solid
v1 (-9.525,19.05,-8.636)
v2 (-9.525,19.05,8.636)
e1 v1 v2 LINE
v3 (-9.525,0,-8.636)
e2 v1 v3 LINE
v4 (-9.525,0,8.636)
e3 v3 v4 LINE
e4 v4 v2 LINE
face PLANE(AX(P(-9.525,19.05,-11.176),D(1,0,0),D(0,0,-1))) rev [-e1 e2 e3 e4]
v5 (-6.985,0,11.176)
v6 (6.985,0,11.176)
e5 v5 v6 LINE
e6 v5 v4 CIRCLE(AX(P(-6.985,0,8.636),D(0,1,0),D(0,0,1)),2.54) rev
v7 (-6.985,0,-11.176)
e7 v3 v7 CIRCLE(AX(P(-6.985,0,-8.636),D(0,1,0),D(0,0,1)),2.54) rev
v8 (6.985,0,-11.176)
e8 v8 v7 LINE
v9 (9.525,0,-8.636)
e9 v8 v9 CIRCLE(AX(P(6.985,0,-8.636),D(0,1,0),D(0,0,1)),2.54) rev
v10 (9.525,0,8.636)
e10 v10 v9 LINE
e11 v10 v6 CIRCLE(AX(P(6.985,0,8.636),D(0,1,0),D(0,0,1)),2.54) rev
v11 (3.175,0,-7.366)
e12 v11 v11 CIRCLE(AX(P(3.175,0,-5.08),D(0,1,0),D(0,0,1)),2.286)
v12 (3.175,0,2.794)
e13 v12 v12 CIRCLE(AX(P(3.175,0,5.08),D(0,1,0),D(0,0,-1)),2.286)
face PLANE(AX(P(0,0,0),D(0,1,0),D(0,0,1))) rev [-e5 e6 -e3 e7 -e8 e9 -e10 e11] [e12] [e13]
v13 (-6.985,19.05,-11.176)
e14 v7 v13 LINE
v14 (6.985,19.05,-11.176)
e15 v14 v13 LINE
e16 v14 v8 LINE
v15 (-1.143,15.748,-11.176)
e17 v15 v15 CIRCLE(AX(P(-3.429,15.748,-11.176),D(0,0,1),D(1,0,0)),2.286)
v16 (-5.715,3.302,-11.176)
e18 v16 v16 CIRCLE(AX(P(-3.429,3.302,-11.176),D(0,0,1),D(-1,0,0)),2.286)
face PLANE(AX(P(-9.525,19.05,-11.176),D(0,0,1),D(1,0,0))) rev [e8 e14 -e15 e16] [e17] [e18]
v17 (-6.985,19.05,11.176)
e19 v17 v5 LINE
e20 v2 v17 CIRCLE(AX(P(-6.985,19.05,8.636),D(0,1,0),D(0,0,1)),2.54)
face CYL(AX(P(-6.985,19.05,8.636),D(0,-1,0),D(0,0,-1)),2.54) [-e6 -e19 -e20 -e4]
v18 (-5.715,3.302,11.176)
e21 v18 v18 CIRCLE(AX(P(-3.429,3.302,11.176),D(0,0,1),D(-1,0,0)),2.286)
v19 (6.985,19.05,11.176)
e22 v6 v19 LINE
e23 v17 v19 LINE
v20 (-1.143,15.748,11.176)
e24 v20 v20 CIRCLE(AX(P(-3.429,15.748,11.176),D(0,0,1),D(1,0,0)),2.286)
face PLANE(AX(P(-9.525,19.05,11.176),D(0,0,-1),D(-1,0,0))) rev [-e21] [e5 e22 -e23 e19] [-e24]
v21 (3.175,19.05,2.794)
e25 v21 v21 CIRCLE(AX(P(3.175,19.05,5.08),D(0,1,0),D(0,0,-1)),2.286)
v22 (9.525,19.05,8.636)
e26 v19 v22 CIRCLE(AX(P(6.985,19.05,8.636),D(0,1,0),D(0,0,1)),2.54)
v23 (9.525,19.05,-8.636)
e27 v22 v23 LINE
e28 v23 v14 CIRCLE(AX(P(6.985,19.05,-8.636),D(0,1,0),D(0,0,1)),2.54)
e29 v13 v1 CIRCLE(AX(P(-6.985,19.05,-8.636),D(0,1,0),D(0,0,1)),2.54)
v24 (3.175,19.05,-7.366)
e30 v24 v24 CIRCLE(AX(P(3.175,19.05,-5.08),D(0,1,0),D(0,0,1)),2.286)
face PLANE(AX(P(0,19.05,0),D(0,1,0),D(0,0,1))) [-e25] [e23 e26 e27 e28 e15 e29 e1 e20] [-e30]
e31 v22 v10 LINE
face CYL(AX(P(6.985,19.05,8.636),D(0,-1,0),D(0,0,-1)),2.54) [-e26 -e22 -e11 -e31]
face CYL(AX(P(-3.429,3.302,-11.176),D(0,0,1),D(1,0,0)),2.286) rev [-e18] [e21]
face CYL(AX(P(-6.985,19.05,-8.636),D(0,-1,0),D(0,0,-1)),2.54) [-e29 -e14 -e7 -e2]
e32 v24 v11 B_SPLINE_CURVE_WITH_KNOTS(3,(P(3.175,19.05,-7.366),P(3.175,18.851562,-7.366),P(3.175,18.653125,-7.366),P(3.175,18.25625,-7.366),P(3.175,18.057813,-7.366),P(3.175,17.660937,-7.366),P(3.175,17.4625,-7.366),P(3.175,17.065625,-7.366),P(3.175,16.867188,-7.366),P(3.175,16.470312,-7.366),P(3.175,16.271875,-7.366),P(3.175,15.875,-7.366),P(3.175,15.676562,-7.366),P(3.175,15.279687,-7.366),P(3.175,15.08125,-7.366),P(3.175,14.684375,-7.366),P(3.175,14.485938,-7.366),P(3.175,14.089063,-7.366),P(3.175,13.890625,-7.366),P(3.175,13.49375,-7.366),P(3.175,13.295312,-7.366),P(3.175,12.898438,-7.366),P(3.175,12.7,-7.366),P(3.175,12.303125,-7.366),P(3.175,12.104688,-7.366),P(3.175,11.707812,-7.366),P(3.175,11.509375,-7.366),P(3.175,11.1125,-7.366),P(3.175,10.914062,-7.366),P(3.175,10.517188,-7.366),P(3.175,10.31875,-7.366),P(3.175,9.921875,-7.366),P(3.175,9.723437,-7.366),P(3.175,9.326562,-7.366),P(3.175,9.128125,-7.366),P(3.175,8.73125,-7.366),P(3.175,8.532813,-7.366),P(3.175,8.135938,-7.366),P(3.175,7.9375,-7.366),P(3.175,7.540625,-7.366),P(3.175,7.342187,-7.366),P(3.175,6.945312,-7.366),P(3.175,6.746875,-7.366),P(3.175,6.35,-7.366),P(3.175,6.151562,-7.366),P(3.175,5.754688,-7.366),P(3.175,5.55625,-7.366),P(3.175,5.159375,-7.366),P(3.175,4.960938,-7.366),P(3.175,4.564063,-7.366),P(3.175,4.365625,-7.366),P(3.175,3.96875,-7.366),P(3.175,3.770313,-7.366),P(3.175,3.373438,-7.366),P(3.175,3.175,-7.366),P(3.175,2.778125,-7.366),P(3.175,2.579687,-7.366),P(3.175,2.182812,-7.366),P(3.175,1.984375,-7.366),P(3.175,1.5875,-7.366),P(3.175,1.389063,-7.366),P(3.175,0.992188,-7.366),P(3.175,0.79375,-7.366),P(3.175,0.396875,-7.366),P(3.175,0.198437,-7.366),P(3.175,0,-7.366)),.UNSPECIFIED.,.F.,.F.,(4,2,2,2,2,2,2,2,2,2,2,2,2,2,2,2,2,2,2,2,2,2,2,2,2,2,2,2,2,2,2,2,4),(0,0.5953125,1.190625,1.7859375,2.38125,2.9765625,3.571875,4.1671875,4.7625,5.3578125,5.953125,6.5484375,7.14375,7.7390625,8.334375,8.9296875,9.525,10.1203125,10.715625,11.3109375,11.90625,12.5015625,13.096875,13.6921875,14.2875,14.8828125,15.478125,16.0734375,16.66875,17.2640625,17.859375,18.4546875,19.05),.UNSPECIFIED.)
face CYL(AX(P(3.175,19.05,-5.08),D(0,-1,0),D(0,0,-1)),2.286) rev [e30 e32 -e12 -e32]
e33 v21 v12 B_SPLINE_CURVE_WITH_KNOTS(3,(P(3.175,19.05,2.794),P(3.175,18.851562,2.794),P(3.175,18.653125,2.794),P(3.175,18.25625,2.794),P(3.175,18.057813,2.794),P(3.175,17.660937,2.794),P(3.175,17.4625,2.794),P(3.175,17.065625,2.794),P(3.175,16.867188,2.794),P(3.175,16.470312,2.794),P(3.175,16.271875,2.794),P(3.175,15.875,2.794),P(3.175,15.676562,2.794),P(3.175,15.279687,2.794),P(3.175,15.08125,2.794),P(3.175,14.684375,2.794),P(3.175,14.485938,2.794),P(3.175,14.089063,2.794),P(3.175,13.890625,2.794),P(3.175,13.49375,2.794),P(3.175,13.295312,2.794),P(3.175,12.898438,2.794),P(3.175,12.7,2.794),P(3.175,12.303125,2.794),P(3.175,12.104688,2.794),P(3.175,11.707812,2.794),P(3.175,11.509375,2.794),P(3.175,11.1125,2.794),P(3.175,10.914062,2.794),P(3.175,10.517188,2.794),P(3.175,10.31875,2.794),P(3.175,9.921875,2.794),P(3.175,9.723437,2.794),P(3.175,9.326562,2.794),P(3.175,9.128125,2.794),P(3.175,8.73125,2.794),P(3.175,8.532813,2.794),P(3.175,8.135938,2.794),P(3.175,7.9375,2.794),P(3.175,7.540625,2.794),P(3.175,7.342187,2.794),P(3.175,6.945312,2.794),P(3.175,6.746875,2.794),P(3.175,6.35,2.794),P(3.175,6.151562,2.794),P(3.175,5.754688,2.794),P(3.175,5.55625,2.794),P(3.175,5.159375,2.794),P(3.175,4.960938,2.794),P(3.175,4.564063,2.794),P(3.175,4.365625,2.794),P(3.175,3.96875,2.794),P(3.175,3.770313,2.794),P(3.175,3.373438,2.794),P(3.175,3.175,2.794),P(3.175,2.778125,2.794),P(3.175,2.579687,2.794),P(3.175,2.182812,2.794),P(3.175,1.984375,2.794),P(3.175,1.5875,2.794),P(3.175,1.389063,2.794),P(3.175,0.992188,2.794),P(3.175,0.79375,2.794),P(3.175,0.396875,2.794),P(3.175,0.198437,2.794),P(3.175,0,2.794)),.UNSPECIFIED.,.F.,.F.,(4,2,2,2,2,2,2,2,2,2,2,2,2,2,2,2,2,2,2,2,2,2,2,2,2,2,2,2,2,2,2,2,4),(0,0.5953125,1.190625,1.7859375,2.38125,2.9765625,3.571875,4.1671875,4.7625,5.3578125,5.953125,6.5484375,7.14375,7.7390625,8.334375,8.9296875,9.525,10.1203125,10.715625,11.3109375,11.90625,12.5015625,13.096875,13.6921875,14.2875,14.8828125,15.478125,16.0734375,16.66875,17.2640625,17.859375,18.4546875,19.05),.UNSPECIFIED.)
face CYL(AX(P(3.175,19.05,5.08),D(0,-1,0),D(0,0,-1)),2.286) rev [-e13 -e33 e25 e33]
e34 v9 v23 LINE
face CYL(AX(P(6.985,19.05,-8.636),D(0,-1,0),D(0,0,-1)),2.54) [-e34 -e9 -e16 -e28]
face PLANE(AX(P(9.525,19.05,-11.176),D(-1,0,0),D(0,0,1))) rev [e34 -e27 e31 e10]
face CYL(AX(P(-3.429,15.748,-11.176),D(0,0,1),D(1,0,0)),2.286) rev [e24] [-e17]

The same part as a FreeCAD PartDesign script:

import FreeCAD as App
import Part
import Sketcher
from FreeCAD import Vector
Q = App.Units.Quantity


def edges_at(feature, points):
    """Names of the edges that pass closest to the given points."""
    edges = feature.Shape.Edges
    near = lambda p: min(range(len(edges)), key=lambda i: edges[i].distToShape(Part.Vertex(*p))[0])
    return sorted({f"Edge{near(p) + 1}" for p in points})


def add_polygon(sketch, points):
    """Adds a closed chain of lines whose ends are joined by coincident constraints."""
    first, n = sketch.GeometryCount, len(points)
    for a, b in zip(points, points[1:] + points[:1]):
        sketch.addGeometry(Part.LineSegment(App.Vector(*a, 0), App.Vector(*b, 0)), False)
    for i in range(n):
        sketch.addConstraint(Sketcher.Constraint("Coincident", first + i, 2, first + (i + 1) % n, 1))

doc = App.newDocument("Part")
body = doc.addObject("PartDesign::Body", "Body")

sketch1 = body.newObject("Sketcher::SketchObject", "Sketch")
sketch1.AttachmentSupport = (doc.getObject("XZ_Plane"), [""])
sketch1.MapMode = "FlatFace"
add_polygon(sketch1, [(-9.525, -11.176), (-9.525, 11.176), (9.525, 11.176), (9.525, -11.176)])
sketch1.addGeometry(Part.Circle(Vector(3.175, 5.08, 0), Vector(0, 0, 1), 2.286), False)
sketch1.addGeometry(Part.Circle(Vector(3.175, -5.08, 0), Vector(0, 0, 1), 2.286), False)
sketch1.addConstraint([
    Sketcher.Constraint("Vertical", 0),
    Sketcher.Constraint("Horizontal", 1),
    Sketcher.Constraint("Vertical", 2),
    Sketcher.Constraint("Horizontal", 3),
    Sketcher.Constraint("Equal", 4, 5),
    Sketcher.Constraint("Symmetric", 0, 2, 2, 2, -1, 1),
    Sketcher.Constraint("Symmetric", 4, 3, 5, 3, -1),
    Sketcher.Constraint("Diameter", 4, Q("0.18 in")),
    Sketcher.Constraint("DistanceX", 1, 1, 1, 2, Q("0.75 in")),
    Sketcher.Constraint("DistanceY", 0, 1, 0, 2, Q("0.88 in")),
    Sketcher.Constraint("DistanceY", -1, 1, 4, 3, Q("0.2 in")),
    Sketcher.Constraint("DistanceX", 0, 2, 4, 3, Q("0.5 in")),
])
pad1 = body.newObject("PartDesign::Pad", "Pad")
pad1.Profile = sketch1
pad1.Length = Q("0.75 in")
pad1.Reversed = True
doc.recompute()

fillet = body.newObject("PartDesign::Fillet", "Fillet")
fillet.Base = (pad1, edges_at(pad1, [(9.525, 9.525, 11.176), (9.525, 9.525, -11.176)]))
fillet.Radius = Q("0.1 in")
doc.recompute()

fillet2 = body.newObject("PartDesign::Fillet", "Fillet001")
fillet2.Base = (fillet, edges_at(fillet, [(-9.525, 9.525, 11.176), (-9.525, 9.525, -11.176)]))
fillet2.Radius = Q("0.1 in")

sketch2 = body.newObject("Sketcher::SketchObject", "Sketch001")
sketch2.AttachmentSupport = (doc.getObject("XY_Plane"), [""])
sketch2.MapMode = "FlatFace"
sketch2.AttachmentOffset = App.Placement(Vector(0, 0, 0.44 * 25.4), App.Rotation())
sketch2.addGeometry([
    Part.Circle(Vector(-3.429, 15.748, 0), Vector(0, 0, 1), 2.286),
    Part.Circle(Vector(-3.429, 3.302, 0), Vector(0, 0, 1), 2.286),
], False)
sketch2.addConstraint([
    Sketcher.Constraint("Equal", 0, 1),
    Sketcher.Constraint("Vertical", 0, 3, 1, 3),
    Sketcher.Constraint("Diameter", 0, Q("0.18 in")),
    Sketcher.Constraint("DistanceY", -1, 1, 0, 3, Q("0.62 in")),
    Sketcher.Constraint("DistanceY", -1, 1, 1, 3, Q("0.13 in")),
    Sketcher.Constraint("DistanceX", 0, 3, -1, 1, Q("0.135 in")),
])
pocket1 = body.newObject("PartDesign::Pocket", "Pocket")
pocket1.Profile = sketch2
pocket1.Type = "ThroughAll"

doc.recompute()
